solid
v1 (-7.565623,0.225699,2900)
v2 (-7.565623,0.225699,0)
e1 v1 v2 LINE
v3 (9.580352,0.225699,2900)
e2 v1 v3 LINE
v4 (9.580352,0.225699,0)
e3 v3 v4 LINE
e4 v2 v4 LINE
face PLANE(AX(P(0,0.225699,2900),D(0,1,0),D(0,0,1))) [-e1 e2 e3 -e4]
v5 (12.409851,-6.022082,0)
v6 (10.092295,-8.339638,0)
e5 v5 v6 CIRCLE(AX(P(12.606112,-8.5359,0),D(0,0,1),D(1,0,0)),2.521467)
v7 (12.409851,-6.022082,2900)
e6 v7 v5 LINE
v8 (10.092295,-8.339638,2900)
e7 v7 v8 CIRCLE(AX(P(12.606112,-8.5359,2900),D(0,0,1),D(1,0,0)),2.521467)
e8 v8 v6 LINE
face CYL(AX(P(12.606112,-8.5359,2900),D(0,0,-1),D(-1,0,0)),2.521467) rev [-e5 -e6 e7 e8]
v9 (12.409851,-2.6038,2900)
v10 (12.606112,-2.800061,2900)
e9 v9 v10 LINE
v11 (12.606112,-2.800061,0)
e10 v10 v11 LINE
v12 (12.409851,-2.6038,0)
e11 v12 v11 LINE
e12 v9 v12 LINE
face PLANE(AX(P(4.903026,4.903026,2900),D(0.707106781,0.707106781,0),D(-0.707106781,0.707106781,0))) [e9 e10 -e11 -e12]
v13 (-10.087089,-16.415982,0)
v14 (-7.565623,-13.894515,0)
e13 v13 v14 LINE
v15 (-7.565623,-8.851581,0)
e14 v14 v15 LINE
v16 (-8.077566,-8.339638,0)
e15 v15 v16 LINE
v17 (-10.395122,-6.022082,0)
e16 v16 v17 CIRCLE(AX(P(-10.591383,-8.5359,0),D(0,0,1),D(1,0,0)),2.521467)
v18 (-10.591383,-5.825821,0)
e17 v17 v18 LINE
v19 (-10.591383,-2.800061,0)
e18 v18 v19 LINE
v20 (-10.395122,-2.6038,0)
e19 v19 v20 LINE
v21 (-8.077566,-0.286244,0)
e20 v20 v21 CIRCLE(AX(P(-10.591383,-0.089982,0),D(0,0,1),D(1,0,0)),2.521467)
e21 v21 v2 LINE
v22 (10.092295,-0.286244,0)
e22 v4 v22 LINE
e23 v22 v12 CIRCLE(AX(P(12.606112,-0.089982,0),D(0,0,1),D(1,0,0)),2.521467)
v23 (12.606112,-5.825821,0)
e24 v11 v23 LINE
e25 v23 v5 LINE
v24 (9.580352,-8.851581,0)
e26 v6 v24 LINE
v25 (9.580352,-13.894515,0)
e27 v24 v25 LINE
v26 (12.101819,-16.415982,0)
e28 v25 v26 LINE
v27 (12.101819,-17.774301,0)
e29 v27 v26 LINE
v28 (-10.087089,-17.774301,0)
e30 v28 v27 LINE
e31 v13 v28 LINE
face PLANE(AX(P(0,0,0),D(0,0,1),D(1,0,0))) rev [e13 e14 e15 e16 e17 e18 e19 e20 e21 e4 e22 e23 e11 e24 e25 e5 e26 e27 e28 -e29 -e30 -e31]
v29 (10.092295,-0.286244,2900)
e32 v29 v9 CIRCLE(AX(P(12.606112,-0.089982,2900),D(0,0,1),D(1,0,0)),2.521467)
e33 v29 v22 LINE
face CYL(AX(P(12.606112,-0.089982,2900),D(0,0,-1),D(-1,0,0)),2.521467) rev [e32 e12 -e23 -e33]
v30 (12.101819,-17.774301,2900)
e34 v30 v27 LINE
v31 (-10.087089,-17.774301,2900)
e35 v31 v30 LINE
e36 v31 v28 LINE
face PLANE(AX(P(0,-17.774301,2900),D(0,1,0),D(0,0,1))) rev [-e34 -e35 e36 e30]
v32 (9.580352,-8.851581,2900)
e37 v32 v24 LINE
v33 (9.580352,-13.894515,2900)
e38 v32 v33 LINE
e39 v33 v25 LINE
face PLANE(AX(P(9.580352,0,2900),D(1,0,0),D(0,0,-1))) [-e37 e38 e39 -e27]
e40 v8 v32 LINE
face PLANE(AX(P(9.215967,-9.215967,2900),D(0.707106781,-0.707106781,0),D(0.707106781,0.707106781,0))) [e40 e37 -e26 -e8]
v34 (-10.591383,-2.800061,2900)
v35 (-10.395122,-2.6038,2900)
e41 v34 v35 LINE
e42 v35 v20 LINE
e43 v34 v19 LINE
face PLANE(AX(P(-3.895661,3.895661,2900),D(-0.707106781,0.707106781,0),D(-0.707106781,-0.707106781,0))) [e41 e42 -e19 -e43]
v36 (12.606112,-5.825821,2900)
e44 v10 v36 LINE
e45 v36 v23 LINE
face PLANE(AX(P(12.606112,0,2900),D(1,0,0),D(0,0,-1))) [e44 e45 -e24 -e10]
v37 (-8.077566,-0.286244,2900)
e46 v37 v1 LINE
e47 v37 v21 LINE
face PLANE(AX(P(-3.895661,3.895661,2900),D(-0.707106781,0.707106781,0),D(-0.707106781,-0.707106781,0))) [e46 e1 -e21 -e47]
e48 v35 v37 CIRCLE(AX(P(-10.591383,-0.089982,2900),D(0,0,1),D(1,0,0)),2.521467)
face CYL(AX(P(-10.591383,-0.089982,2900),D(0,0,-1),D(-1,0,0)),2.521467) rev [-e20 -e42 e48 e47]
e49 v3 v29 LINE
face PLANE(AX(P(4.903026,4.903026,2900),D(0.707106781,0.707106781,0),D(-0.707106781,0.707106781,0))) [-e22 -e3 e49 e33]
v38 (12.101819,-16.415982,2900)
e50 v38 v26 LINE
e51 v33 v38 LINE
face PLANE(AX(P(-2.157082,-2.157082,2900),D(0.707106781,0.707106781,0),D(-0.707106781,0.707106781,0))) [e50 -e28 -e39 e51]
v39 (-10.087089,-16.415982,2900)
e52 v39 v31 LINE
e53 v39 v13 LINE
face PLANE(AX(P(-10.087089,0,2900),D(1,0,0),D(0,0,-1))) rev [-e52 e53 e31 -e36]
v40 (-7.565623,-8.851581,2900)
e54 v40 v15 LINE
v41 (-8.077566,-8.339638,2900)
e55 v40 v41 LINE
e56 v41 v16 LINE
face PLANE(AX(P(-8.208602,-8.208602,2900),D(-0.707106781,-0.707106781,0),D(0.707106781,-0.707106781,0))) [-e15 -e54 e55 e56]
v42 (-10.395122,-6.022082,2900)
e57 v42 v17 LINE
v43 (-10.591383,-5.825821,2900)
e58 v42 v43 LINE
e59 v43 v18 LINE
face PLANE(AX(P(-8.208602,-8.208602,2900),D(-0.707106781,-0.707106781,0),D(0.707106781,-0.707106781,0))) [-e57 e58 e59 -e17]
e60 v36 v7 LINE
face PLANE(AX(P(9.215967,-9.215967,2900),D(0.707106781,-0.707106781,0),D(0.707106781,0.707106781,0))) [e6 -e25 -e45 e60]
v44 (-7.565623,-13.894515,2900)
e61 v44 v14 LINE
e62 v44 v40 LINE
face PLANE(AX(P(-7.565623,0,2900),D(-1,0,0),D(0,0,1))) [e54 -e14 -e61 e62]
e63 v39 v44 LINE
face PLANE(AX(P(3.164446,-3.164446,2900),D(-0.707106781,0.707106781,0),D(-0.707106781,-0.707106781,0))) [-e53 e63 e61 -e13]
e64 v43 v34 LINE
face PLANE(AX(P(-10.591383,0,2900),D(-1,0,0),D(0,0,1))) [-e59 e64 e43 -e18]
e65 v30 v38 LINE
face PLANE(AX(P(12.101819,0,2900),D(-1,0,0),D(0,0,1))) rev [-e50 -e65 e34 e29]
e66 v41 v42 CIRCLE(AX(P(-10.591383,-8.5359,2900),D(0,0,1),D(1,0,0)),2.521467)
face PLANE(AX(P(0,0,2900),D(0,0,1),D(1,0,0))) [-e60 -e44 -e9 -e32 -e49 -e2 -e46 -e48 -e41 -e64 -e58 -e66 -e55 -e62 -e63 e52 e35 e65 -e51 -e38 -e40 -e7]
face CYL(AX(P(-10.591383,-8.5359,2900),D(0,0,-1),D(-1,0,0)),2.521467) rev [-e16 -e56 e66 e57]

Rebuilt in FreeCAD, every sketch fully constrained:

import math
import FreeCAD as App
import Part
import Sketcher

doc = App.newDocument("Part")
params = doc.addObject("Spreadsheet::Sheet", "Params")
for row, (alias, value) in enumerate([
    ("pad1_length", "2900 mm"),
], start=1):
    params.set(f"A{row}", alias)
    params.set(f"B{row}", "=" + value)
    params.setAlias(f"B{row}", alias)

body = doc.addObject("PartDesign::Body", "Body")

sketch1 = body.newObject("Sketcher::SketchObject", "Sketch")
sketch1.AttachmentSupport = (doc.getObject("XY_Plane"), [""])
sketch1.MapMode = "FlatFace"
sketch1.addGeometry(Part.LineSegment(App.Vector(-7.57, -13.89, 0), App.Vector(-10.09, -16.42, 0)), False)
sketch1.addGeometry(Part.LineSegment(App.Vector(-10.09, -16.42, 0), App.Vector(-10.09, -17.77, 0)), False)
sketch1.addGeometry(Part.LineSegment(App.Vector(-10.09, -17.77, 0), App.Vector(12.1, -17.77, 0)), False)
sketch1.addGeometry(Part.LineSegment(App.Vector(12.1, -17.77, 0), App.Vector(12.1, -16.42, 0)), False)
sketch1.addGeometry(Part.LineSegment(App.Vector(12.1, -16.42, 0), App.Vector(9.58, -13.89, 0)), False)
sketch1.addGeometry(Part.LineSegment(App.Vector(9.58, -13.89, 0), App.Vector(9.58, -8.85, 0)), False)
sketch1.addGeometry(Part.LineSegment(App.Vector(9.58, -8.85, 0), App.Vector(10.09, -8.34, 0)), False)
sketch1.addGeometry(Part.ArcOfCircle(Part.Circle(App.Vector(12.61, -8.54, 0), App.Vector(0, 0, 1), 2.52), math.radians(94), math.radians(176)), False)
sketch1.addGeometry(Part.LineSegment(App.Vector(12.41, -6.02, 0), App.Vector(12.61, -5.83, 0)), False)
sketch1.addGeometry(Part.LineSegment(App.Vector(12.61, -5.83, 0), App.Vector(12.61, -2.8, 0)), False)
sketch1.addGeometry(Part.LineSegment(App.Vector(12.61, -2.8, 0), App.Vector(12.41, -2.6, 0)), False)
sketch1.addGeometry(Part.ArcOfCircle(Part.Circle(App.Vector(12.61, -0.09, 0), App.Vector(0, 0, 1), 2.52), math.radians(-176), math.radians(-94)), False)
sketch1.addGeometry(Part.LineSegment(App.Vector(10.09, -0.29, 0), App.Vector(9.58, 0.23, 0)), False)
sketch1.addGeometry(Part.LineSegment(App.Vector(9.58, 0.23, 0), App.Vector(-7.57, 0.23, 0)), False)
sketch1.addGeometry(Part.LineSegment(App.Vector(-7.57, 0.23, 0), App.Vector(-8.08, -0.29, 0)), False)
sketch1.addGeometry(Part.ArcOfCircle(Part.Circle(App.Vector(-10.59, -0.09, 0), App.Vector(0, 0, 1), 2.52), math.radians(-86), math.radians(-4)), False)
sketch1.addGeometry(Part.LineSegment(App.Vector(-10.4, -2.6, 0), App.Vector(-10.59, -2.8, 0)), False)
sketch1.addGeometry(Part.LineSegment(App.Vector(-10.59, -2.8, 0), App.Vector(-10.59, -5.83, 0)), False)
sketch1.addGeometry(Part.LineSegment(App.Vector(-10.59, -5.83, 0), App.Vector(-10.4, -6.02, 0)), False)
sketch1.addGeometry(Part.ArcOfCircle(Part.Circle(App.Vector(-10.59, -8.54, 0), App.Vector(0, 0, 1), 2.52), math.radians(4), math.radians(86)), False)
sketch1.addGeometry(Part.LineSegment(App.Vector(-8.08, -8.34, 0), App.Vector(-7.57, -8.85, 0)), False)
sketch1.addGeometry(Part.LineSegment(App.Vector(-7.57, -8.85, 0), App.Vector(-7.57, -13.89, 0)), False)
sketch1.addConstraint(Sketcher.Constraint("Coincident", 0, 2, 1, 1))
sketch1.addConstraint(Sketcher.Constraint("Coincident", 1, 2, 2, 1))
sketch1.addConstraint(Sketcher.Constraint("Coincident", 2, 2, 3, 1))
sketch1.addConstraint(Sketcher.Constraint("Coincident", 3, 2, 4, 1))
sketch1.addConstraint(Sketcher.Constraint("Coincident", 4, 2, 5, 1))
sketch1.addConstraint(Sketcher.Constraint("Coincident", 5, 2, 6, 1))
sketch1.addConstraint(Sketcher.Constraint("Coincident", 6, 2, 7, 2))
sketch1.addConstraint(Sketcher.Constraint("Coincident", 7, 1, 8, 1))
sketch1.addConstraint(Sketcher.Constraint("Coincident", 8, 2, 9, 1))
sketch1.addConstraint(Sketcher.Constraint("Coincident", 9, 2, 10, 1))
sketch1.addConstraint(Sketcher.Constraint("Coincident", 10, 2, 11, 2))
sketch1.addConstraint(Sketcher.Constraint("Coincident", 11, 1, 12, 1))
sketch1.addConstraint(Sketcher.Constraint("Coincident", 12, 2, 13, 1))
sketch1.addConstraint(Sketcher.Constraint("Coincident", 13, 2, 14, 1))
sketch1.addConstraint(Sketcher.Constraint("Coincident", 14, 2, 15, 2))
sketch1.addConstraint(Sketcher.Constraint("Coincident", 15, 1, 16, 1))
sketch1.addConstraint(Sketcher.Constraint("Coincident", 16, 2, 17, 1))
sketch1.addConstraint(Sketcher.Constraint("Coincident", 17, 2, 18, 1))
sketch1.addConstraint(Sketcher.Constraint("Coincident", 18, 2, 19, 2))
sketch1.addConstraint(Sketcher.Constraint("Coincident", 19, 1, 20, 1))
sketch1.addConstraint(Sketcher.Constraint("Coincident", 20, 2, 21, 1))
sketch1.addConstraint(Sketcher.Constraint("Coincident", 21, 2, 0, 1))
sketch1.addConstraint(Sketcher.Constraint("Vertical", 1))
sketch1.addConstraint(Sketcher.Constraint("Horizontal", 2))
sketch1.addConstraint(Sketcher.Constraint("Vertical", 3))
sketch1.addConstraint(Sketcher.Constraint("Vertical", 5))
sketch1.addConstraint(Sketcher.Constraint("Vertical", 9))
sketch1.addConstraint(Sketcher.Constraint("Horizontal", 13))
sketch1.addConstraint(Sketcher.Constraint("Vertical", 17))
sketch1.addConstraint(Sketcher.Constraint("Vertical", 21))
sketch1.addConstraint(Sketcher.Constraint("Equal", 7, 11))
sketch1.addConstraint(Sketcher.Constraint("Equal", 11, 15))
sketch1.addConstraint(Sketcher.Constraint("Equal", 15, 19))
sketch1.addConstraint(Sketcher.Constraint("Perpendicular", 0, 4))
sketch1.addConstraint(Sketcher.Constraint("Perpendicular", 4, 6))
sketch1.addConstraint(Sketcher.Constraint("Parallel", 6, 8))
sketch1.addConstraint(Sketcher.Constraint("Perpendicular", 8, 10))
sketch1.addConstraint(Sketcher.Constraint("Parallel", 10, 12))
sketch1.addConstraint(Sketcher.Constraint("Perpendicular", 12, 14))
sketch1.addConstraint(Sketcher.Constraint("Parallel", 14, 16))
sketch1.addConstraint(Sketcher.Constraint("Perpendicular", 16, 18))
sketch1.addConstraint(Sketcher.Constraint("Parallel", 18, 20))
sketch1.addConstraint(Sketcher.Constraint("Horizontal", 11, 3, 15, 3))
sketch1.addConstraint(Sketcher.Constraint("Horizontal", 7, 3, 19, 3))
sketch1.addConstraint(Sketcher.Constraint("Horizontal", 0, 2, 3, 2))
sketch1.addConstraint(Sketcher.Constraint("Horizontal", 11, 1, 14, 2))
sketch1.addConstraint(Sketcher.Constraint("Horizontal", 10, 2, 15, 1))
sketch1.addConstraint(Sketcher.Constraint("Horizontal", 9, 2, 16, 2))
sketch1.addConstraint(Sketcher.Constraint("Horizontal", 8, 2, 17, 2))
sketch1.addConstraint(Sketcher.Constraint("Horizontal", 7, 1, 18, 2))
sketch1.addConstraint(Sketcher.Constraint("Horizontal", 6, 2, 19, 1))
sketch1.addConstraint(Sketcher.Constraint("Horizontal", 5, 2, 20, 2))
sketch1.addConstraint(Sketcher.Constraint("Horizontal", 4, 2, 21, 2))
sketch1.addConstraint(Sketcher.Constraint("Vertical", 7, 3, 11, 3))
sketch1.addConstraint(Sketcher.Constraint("Vertical", 15, 3, 19, 3))
sketch1.addConstraint(Sketcher.Constraint("Vertical", 11, 3, 8, 2))
sketch1.addConstraint(Sketcher.Constraint("Vertical", 7, 1, 10, 2))
sketch1.addConstraint(Sketcher.Constraint("Vertical", 6, 2, 11, 1))
sketch1.addConstraint(Sketcher.Constraint("Vertical", 5, 2, 12, 2))
sketch1.addConstraint(Sketcher.Constraint("Radius", 7, 2.521467))
sketch1.addConstraint(Sketcher.Constraint("DistanceY", 0, 2, 15, 3, 16.326))
sketch1.addConstraint(Sketcher.Constraint("DistanceX", 2, 1, 2, 2, 22.188908))
sketch1.addConstraint(Sketcher.Constraint("DistanceY", 1, 2, 1, 1, 1.358319))
sketch1.addConstraint(Sketcher.Constraint("DistanceY", 9, 1, 9, 2, 3.02576))
sketch1.addConstraint(Sketcher.Constraint("DistanceY", 7, 3, -1, 1, 8.5359))
sketch1.addConstraint(Sketcher.Constraint("DistanceY", 1, 2, -1, 1, 17.774301))
sketch1.addConstraint(Sketcher.Constraint("DistanceY", -1, 1, 12, 2, 0.225699))
sketch1.addConstraint(Sketcher.Constraint("DistanceX", 0, 2, 7, 3, 22.693202))
sketch1.addConstraint(Sketcher.Constraint("DistanceX", 5, 2, 7, 1, 2.829499))
sketch1.addConstraint(Sketcher.Constraint("DistanceX", 0, 2, -1, 1, 10.087089))
pad1 = body.newObject("PartDesign::Pad", "Pad")
pad1.Profile = sketch1
pad1.setExpression("Length", "Params.pad1_length")

doc.recompute()
